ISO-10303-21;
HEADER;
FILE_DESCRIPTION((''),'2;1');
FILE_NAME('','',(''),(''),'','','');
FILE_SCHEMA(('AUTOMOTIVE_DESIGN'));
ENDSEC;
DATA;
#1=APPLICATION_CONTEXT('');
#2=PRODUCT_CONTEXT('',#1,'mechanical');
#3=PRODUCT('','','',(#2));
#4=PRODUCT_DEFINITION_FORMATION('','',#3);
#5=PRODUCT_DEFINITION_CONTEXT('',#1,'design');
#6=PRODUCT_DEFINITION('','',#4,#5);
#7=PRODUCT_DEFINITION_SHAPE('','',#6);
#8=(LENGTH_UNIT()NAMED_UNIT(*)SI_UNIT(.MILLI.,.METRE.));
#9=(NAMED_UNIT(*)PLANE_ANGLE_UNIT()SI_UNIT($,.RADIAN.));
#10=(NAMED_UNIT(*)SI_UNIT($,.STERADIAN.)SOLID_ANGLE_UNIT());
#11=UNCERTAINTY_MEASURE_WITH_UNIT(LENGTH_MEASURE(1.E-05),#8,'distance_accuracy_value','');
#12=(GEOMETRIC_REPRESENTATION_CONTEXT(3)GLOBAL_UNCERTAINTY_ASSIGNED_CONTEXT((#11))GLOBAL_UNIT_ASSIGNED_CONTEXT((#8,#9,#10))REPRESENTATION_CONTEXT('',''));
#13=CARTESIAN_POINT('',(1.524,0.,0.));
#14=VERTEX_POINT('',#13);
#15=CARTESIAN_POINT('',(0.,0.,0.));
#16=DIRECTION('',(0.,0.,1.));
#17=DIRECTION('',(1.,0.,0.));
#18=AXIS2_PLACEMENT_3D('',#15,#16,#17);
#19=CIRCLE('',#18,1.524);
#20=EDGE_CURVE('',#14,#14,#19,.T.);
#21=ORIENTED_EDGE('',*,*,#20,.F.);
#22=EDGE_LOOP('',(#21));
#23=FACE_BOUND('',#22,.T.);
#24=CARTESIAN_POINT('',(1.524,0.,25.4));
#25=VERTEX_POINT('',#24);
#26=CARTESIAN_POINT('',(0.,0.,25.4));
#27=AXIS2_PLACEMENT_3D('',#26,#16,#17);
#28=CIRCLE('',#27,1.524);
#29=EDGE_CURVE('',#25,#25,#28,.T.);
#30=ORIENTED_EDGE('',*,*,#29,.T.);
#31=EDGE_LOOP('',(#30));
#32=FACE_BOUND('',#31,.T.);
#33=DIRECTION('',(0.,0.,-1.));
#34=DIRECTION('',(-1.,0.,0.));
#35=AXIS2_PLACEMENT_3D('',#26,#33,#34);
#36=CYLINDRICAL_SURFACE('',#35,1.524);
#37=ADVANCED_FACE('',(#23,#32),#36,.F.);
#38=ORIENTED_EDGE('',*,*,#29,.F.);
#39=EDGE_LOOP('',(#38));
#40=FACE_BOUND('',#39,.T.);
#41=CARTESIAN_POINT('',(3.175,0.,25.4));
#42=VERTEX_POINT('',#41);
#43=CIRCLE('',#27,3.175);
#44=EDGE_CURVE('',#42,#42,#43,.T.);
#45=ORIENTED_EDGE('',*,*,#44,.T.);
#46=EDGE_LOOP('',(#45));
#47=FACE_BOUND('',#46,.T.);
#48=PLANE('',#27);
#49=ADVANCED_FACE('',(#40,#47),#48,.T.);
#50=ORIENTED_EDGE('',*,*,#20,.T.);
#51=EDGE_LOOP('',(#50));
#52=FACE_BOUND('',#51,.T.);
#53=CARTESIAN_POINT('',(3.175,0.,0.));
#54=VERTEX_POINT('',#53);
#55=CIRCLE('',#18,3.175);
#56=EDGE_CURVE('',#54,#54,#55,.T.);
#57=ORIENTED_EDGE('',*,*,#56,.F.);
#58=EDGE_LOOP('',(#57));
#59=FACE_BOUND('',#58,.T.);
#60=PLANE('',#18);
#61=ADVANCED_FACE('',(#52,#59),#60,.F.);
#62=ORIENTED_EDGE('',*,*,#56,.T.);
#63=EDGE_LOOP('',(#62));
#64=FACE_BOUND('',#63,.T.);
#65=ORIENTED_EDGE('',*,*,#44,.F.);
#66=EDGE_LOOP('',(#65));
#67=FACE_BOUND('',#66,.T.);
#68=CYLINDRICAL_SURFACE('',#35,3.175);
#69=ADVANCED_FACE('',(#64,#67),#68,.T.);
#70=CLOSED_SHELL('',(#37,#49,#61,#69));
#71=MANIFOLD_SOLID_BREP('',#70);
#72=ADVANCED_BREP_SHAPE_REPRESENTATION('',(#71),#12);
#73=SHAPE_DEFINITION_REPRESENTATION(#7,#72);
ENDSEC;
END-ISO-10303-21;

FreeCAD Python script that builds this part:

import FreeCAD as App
import Part
import Sketcher

V = App.Vector
Q = App.Units.Quantity

doc = App.newDocument("Part")
body = doc.addObject("PartDesign::Body", "Body")

# Sketch on XY plane
sketch1 = body.newObject("Sketcher::SketchObject", "Sketch")
sketch1.AttachmentSupport = (doc.getObject("XY_Plane"), [""])
sketch1.MapMode = "FlatFace"
sketch1.addGeometry([
    Part.Circle(V(0, 0, 0), V(0, 0, 1), 3.2),
    Part.Circle(V(0, 0, 0), V(0, 0, 1), 1.5),
], False)
sketch1.addConstraint([
    Sketcher.Constraint("Coincident", 0, 3, -1, 1),
    Sketcher.Constraint("Coincident", 1, 3, -1, 1),
    Sketcher.Constraint("Diameter", 0, Q("0.25 in")),
    Sketcher.Constraint("Diameter", 1, Q("0.12 in")),
])
pad1 = body.newObject("PartDesign::Pad", "Pad")
pad1.Profile = sketch1
pad1.Length = Q("1 in")

doc.recompute()
